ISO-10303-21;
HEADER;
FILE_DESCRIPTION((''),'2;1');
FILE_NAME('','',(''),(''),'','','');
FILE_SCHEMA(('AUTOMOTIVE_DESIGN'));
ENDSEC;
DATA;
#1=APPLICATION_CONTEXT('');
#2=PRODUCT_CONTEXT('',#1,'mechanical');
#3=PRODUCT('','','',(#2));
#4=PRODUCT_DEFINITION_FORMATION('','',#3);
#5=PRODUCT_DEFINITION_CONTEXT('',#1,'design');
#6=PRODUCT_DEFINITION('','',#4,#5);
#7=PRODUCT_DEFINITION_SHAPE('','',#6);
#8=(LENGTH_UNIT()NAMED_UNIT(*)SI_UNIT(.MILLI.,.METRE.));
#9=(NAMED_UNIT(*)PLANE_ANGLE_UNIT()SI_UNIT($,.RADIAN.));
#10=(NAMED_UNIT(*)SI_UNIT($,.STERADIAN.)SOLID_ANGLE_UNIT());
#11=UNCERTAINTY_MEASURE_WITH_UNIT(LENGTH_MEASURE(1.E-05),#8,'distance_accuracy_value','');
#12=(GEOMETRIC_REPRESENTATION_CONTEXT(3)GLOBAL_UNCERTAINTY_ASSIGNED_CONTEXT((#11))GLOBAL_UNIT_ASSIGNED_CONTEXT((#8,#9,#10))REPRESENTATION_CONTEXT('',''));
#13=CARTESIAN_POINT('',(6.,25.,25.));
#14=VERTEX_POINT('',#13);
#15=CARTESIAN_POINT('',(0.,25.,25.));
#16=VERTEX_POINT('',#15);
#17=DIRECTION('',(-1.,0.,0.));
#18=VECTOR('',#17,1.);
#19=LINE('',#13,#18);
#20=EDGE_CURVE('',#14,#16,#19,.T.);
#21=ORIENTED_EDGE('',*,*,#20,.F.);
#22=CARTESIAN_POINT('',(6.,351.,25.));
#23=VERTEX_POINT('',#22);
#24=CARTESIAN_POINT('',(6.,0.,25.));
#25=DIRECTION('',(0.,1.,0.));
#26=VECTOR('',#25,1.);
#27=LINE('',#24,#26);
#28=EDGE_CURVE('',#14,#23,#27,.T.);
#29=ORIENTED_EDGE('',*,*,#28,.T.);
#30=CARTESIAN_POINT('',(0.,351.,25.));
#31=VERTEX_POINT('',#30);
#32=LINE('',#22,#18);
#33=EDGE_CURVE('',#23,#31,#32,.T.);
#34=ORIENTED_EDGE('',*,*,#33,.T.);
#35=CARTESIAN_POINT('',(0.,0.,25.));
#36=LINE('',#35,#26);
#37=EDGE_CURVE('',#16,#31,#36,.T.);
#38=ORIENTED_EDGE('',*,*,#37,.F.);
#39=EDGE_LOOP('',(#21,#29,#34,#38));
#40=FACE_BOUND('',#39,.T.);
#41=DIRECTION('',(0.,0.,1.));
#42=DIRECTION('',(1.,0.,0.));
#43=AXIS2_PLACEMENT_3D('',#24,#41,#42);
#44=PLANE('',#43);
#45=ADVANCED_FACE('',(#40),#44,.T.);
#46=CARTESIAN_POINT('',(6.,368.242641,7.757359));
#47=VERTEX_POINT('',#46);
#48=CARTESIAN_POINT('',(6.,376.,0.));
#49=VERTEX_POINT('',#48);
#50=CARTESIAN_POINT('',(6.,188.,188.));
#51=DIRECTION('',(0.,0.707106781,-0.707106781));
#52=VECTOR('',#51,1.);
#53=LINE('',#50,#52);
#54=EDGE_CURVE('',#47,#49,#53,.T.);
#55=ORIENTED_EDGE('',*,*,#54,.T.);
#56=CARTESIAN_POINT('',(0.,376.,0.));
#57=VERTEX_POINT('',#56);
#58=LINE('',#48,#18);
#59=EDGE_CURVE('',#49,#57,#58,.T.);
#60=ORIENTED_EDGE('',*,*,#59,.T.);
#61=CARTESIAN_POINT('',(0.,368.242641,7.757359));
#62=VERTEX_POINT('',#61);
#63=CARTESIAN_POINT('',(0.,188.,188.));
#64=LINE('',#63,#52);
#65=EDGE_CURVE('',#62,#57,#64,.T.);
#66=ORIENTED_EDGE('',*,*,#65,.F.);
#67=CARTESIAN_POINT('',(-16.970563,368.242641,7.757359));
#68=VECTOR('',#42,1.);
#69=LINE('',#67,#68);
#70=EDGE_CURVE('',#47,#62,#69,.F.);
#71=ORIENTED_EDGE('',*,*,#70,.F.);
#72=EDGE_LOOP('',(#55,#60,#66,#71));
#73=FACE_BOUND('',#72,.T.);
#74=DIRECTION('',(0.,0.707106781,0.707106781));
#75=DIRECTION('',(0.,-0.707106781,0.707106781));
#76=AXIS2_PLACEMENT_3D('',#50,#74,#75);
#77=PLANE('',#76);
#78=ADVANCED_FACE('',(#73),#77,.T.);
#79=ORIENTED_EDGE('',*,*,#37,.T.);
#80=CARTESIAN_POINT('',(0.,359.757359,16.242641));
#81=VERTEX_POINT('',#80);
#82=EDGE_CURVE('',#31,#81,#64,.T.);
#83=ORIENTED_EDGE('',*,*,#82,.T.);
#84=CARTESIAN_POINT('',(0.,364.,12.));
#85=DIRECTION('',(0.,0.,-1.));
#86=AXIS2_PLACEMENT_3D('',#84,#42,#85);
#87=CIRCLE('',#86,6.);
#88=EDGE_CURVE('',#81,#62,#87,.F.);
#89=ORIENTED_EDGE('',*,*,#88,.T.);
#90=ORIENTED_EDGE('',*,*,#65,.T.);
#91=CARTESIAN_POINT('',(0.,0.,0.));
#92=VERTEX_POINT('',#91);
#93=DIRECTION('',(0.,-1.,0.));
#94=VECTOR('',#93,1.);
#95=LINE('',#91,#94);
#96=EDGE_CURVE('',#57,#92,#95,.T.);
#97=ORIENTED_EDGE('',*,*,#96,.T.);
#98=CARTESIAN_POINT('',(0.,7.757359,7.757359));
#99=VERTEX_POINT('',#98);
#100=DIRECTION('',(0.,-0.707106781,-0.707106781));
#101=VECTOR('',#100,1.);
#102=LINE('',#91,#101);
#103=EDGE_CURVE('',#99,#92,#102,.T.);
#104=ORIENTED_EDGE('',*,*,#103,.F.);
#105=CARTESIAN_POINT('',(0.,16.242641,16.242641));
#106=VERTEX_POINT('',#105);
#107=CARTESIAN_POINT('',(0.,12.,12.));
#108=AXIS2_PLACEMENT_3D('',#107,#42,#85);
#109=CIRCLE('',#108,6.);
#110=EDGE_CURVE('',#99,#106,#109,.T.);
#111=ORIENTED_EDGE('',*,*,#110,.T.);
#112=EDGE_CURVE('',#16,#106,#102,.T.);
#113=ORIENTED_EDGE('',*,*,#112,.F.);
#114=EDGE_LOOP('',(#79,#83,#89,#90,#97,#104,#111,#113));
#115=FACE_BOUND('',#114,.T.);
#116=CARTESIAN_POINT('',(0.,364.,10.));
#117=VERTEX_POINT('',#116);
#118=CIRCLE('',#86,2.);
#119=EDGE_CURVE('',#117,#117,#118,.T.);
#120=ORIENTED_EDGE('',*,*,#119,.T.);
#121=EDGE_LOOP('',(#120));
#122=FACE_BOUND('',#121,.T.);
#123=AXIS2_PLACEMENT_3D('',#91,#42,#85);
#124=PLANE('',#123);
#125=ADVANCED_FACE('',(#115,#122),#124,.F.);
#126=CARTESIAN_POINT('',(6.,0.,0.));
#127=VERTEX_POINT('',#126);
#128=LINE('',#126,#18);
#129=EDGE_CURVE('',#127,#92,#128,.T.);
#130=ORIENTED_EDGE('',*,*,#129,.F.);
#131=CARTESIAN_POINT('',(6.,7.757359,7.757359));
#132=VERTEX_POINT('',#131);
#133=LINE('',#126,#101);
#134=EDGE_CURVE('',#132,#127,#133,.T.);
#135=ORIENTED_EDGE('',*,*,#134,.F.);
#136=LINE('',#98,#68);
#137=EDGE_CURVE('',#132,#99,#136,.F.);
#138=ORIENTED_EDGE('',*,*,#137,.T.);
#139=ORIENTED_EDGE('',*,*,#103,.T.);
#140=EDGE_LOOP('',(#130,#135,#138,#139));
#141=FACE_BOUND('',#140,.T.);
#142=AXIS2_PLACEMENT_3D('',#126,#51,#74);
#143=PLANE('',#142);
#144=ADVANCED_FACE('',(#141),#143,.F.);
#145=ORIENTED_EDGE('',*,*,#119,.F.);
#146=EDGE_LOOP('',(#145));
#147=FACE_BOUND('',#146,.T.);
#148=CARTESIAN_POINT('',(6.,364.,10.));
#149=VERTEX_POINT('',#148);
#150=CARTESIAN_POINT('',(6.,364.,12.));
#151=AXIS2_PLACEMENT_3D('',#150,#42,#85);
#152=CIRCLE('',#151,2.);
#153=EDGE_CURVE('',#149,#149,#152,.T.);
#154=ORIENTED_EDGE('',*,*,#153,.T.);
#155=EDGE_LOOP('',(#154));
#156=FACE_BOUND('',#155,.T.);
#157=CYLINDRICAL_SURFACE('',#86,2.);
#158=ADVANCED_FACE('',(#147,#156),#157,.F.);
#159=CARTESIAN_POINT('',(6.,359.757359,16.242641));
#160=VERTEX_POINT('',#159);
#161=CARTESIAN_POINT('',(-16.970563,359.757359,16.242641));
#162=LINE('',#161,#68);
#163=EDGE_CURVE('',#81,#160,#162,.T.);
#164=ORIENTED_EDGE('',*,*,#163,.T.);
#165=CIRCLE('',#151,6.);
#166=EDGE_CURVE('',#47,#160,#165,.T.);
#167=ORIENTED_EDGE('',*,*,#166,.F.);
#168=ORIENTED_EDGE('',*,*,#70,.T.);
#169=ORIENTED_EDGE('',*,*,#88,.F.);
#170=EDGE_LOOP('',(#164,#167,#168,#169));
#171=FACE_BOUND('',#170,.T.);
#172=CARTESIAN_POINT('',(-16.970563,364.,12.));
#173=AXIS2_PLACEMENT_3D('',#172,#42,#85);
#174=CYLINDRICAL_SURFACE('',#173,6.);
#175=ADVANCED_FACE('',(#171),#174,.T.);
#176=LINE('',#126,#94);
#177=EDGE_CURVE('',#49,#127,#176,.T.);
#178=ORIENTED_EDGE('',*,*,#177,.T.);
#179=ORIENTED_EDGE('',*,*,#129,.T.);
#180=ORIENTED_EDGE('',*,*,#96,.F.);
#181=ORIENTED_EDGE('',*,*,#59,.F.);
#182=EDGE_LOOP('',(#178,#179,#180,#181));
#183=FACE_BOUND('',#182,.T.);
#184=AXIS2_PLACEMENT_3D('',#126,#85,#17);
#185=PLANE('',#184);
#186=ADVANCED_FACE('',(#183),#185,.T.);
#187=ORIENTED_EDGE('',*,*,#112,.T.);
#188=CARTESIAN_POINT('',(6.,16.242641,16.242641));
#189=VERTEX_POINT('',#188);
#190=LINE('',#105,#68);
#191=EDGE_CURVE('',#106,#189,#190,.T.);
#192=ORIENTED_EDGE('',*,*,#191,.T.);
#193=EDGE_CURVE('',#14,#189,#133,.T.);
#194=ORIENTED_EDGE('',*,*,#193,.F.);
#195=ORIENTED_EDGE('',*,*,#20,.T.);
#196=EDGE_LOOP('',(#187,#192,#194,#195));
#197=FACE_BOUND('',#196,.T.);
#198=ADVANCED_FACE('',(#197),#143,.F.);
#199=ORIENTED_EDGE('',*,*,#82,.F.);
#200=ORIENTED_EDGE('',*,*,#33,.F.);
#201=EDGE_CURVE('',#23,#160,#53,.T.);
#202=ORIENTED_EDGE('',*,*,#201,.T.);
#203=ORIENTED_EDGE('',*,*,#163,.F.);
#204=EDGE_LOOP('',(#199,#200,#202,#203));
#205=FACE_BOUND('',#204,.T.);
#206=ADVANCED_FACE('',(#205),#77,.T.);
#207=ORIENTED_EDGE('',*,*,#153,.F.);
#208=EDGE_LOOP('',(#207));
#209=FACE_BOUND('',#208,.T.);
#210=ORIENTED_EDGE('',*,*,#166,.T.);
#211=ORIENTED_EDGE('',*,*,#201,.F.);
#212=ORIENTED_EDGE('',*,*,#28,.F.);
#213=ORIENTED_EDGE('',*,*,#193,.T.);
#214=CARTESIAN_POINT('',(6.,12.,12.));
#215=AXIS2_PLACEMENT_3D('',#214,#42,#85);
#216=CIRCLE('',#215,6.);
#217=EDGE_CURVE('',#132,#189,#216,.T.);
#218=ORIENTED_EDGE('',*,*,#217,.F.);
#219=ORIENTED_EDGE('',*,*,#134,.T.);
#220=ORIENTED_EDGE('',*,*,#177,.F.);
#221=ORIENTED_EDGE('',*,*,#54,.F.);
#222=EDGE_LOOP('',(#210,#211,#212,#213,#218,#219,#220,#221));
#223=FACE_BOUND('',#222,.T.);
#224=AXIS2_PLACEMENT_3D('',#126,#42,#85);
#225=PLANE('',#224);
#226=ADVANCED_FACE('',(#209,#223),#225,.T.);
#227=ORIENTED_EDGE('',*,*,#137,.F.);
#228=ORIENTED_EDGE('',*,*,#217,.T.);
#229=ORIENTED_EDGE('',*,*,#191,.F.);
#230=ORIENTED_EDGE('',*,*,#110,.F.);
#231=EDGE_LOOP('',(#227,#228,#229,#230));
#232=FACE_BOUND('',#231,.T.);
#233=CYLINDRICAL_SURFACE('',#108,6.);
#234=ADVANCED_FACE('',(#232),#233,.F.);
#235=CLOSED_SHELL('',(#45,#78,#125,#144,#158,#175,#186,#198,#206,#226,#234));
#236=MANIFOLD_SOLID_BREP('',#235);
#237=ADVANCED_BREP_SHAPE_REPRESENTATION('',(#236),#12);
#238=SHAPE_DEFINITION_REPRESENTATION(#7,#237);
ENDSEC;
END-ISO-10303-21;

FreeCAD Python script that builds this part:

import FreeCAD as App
import Part
import Sketcher
from FreeCAD import Vector
Q = App.Units.Quantity


def add_polygon(sketch, points):
    """Adds a closed chain of lines whose ends are joined by coincident constraints."""
    first, n = sketch.GeometryCount, len(points)
    for a, b in zip(points, points[1:] + points[:1]):
        sketch.addGeometry(Part.LineSegment(App.Vector(*a, 0), App.Vector(*b, 0)), False)
    for i in range(n):
        sketch.addConstraint(Sketcher.Constraint("Coincident", first + i, 2, first + (i + 1) % n, 1))

doc = App.newDocument("Part")
body = doc.addObject("PartDesign::Body", "Body")

# Sketch on YZ plane
sketch1 = doc.addObject("Sketcher::SketchObject", "Sketch")
body.addObject(sketch1)
sketch1.AttachmentSupport = (doc.YZ_Plane, [""])
sketch1.MapMode = "FlatFace"
add_polygon(sketch1, [(0, 0), (376, 0), (351, 25), (25, 25)])  # lines 0-3
sketch1.addConstraint([
    Sketcher.Constraint("Horizontal", 0),
    Sketcher.Constraint("Horizontal", 2),
    Sketcher.Constraint("Coincident", 3, 2, -1, 1),
    Sketcher.Constraint("Perpendicular", 1, 3),
    Sketcher.Constraint("Equal", 1, 3),
    Sketcher.Constraint("DistanceX", 0, 1, 0, 2, Q("376 mm")),
    Sketcher.Constraint("DistanceX", 2, 2, 2, 1, Q("326 mm")),
])
pad1 = doc.addObject("PartDesign::Pad", "Pad")
body.addObject(pad1)
pad1.Profile = sketch1
pad1.Length = 6

# Sketch on YZ plane
sketch2 = doc.addObject("Sketcher::SketchObject", "Sketch001")
body.addObject(sketch2)
sketch2.AttachmentSupport = (doc.YZ_Plane, [""])
sketch2.MapMode = "FlatFace"
sketch2.AttachmentOffset = App.Placement(Vector(0, 0, 6), App.Rotation())
sketch2.addGeometry(Part.Circle(Vector(364, 12, 0), Vector(0, 0, 1), 6), False)
sketch2.addConstraint([
    Sketcher.Constraint("Diameter", 0, Q("12 mm")),
    Sketcher.Constraint("DistanceX", -1, 1, 0, 3, Q("364 mm")),
    Sketcher.Constraint("DistanceY", -1, 1, 0, 3, Q("12 mm")),
])
pad2 = doc.addObject("PartDesign::Pad", "Pad001")
body.addObject(pad2)
pad2.Profile = sketch2
pad2.Length = 6
pad2.Reversed = True

# Sketch on YZ plane
sketch3 = doc.addObject("Sketcher::SketchObject", "Sketch002")
body.addObject(sketch3)
sketch3.AttachmentSupport = (doc.YZ_Plane, [""])
sketch3.MapMode = "FlatFace"
sketch3.AttachmentOffset = App.Placement(Vector(0, 0, 6), App.Rotation())
sketch3.addGeometry([
    Part.Circle(Vector(364, 12, 0), Vector(0, 0, 1), 2),
    Part.Circle(Vector(12, 12, 0), Vector(0, 0, 1), 6),
], False)
sketch3.addConstraint([
    Sketcher.Constraint("Horizontal", 0, 3, 1, 3),
    Sketcher.Constraint("Diameter", 0, Q("4 mm")),
    Sketcher.Constraint("Diameter", 1, Q("12 mm")),
    Sketcher.Constraint("DistanceX", -1, 1, 0, 3, Q("364 mm")),
    Sketcher.Constraint("DistanceY", -1, 1, 0, 3, Q("12 mm")),
    Sketcher.Constraint("DistanceX", -1, 1, 1, 3, Q("12 mm")),
])
pocket1 = doc.addObject("PartDesign::Pocket", "Pocket")
body.addObject(pocket1)
pocket1.Profile = sketch3
pocket1.Type = "ThroughAll"

doc.recompute()
